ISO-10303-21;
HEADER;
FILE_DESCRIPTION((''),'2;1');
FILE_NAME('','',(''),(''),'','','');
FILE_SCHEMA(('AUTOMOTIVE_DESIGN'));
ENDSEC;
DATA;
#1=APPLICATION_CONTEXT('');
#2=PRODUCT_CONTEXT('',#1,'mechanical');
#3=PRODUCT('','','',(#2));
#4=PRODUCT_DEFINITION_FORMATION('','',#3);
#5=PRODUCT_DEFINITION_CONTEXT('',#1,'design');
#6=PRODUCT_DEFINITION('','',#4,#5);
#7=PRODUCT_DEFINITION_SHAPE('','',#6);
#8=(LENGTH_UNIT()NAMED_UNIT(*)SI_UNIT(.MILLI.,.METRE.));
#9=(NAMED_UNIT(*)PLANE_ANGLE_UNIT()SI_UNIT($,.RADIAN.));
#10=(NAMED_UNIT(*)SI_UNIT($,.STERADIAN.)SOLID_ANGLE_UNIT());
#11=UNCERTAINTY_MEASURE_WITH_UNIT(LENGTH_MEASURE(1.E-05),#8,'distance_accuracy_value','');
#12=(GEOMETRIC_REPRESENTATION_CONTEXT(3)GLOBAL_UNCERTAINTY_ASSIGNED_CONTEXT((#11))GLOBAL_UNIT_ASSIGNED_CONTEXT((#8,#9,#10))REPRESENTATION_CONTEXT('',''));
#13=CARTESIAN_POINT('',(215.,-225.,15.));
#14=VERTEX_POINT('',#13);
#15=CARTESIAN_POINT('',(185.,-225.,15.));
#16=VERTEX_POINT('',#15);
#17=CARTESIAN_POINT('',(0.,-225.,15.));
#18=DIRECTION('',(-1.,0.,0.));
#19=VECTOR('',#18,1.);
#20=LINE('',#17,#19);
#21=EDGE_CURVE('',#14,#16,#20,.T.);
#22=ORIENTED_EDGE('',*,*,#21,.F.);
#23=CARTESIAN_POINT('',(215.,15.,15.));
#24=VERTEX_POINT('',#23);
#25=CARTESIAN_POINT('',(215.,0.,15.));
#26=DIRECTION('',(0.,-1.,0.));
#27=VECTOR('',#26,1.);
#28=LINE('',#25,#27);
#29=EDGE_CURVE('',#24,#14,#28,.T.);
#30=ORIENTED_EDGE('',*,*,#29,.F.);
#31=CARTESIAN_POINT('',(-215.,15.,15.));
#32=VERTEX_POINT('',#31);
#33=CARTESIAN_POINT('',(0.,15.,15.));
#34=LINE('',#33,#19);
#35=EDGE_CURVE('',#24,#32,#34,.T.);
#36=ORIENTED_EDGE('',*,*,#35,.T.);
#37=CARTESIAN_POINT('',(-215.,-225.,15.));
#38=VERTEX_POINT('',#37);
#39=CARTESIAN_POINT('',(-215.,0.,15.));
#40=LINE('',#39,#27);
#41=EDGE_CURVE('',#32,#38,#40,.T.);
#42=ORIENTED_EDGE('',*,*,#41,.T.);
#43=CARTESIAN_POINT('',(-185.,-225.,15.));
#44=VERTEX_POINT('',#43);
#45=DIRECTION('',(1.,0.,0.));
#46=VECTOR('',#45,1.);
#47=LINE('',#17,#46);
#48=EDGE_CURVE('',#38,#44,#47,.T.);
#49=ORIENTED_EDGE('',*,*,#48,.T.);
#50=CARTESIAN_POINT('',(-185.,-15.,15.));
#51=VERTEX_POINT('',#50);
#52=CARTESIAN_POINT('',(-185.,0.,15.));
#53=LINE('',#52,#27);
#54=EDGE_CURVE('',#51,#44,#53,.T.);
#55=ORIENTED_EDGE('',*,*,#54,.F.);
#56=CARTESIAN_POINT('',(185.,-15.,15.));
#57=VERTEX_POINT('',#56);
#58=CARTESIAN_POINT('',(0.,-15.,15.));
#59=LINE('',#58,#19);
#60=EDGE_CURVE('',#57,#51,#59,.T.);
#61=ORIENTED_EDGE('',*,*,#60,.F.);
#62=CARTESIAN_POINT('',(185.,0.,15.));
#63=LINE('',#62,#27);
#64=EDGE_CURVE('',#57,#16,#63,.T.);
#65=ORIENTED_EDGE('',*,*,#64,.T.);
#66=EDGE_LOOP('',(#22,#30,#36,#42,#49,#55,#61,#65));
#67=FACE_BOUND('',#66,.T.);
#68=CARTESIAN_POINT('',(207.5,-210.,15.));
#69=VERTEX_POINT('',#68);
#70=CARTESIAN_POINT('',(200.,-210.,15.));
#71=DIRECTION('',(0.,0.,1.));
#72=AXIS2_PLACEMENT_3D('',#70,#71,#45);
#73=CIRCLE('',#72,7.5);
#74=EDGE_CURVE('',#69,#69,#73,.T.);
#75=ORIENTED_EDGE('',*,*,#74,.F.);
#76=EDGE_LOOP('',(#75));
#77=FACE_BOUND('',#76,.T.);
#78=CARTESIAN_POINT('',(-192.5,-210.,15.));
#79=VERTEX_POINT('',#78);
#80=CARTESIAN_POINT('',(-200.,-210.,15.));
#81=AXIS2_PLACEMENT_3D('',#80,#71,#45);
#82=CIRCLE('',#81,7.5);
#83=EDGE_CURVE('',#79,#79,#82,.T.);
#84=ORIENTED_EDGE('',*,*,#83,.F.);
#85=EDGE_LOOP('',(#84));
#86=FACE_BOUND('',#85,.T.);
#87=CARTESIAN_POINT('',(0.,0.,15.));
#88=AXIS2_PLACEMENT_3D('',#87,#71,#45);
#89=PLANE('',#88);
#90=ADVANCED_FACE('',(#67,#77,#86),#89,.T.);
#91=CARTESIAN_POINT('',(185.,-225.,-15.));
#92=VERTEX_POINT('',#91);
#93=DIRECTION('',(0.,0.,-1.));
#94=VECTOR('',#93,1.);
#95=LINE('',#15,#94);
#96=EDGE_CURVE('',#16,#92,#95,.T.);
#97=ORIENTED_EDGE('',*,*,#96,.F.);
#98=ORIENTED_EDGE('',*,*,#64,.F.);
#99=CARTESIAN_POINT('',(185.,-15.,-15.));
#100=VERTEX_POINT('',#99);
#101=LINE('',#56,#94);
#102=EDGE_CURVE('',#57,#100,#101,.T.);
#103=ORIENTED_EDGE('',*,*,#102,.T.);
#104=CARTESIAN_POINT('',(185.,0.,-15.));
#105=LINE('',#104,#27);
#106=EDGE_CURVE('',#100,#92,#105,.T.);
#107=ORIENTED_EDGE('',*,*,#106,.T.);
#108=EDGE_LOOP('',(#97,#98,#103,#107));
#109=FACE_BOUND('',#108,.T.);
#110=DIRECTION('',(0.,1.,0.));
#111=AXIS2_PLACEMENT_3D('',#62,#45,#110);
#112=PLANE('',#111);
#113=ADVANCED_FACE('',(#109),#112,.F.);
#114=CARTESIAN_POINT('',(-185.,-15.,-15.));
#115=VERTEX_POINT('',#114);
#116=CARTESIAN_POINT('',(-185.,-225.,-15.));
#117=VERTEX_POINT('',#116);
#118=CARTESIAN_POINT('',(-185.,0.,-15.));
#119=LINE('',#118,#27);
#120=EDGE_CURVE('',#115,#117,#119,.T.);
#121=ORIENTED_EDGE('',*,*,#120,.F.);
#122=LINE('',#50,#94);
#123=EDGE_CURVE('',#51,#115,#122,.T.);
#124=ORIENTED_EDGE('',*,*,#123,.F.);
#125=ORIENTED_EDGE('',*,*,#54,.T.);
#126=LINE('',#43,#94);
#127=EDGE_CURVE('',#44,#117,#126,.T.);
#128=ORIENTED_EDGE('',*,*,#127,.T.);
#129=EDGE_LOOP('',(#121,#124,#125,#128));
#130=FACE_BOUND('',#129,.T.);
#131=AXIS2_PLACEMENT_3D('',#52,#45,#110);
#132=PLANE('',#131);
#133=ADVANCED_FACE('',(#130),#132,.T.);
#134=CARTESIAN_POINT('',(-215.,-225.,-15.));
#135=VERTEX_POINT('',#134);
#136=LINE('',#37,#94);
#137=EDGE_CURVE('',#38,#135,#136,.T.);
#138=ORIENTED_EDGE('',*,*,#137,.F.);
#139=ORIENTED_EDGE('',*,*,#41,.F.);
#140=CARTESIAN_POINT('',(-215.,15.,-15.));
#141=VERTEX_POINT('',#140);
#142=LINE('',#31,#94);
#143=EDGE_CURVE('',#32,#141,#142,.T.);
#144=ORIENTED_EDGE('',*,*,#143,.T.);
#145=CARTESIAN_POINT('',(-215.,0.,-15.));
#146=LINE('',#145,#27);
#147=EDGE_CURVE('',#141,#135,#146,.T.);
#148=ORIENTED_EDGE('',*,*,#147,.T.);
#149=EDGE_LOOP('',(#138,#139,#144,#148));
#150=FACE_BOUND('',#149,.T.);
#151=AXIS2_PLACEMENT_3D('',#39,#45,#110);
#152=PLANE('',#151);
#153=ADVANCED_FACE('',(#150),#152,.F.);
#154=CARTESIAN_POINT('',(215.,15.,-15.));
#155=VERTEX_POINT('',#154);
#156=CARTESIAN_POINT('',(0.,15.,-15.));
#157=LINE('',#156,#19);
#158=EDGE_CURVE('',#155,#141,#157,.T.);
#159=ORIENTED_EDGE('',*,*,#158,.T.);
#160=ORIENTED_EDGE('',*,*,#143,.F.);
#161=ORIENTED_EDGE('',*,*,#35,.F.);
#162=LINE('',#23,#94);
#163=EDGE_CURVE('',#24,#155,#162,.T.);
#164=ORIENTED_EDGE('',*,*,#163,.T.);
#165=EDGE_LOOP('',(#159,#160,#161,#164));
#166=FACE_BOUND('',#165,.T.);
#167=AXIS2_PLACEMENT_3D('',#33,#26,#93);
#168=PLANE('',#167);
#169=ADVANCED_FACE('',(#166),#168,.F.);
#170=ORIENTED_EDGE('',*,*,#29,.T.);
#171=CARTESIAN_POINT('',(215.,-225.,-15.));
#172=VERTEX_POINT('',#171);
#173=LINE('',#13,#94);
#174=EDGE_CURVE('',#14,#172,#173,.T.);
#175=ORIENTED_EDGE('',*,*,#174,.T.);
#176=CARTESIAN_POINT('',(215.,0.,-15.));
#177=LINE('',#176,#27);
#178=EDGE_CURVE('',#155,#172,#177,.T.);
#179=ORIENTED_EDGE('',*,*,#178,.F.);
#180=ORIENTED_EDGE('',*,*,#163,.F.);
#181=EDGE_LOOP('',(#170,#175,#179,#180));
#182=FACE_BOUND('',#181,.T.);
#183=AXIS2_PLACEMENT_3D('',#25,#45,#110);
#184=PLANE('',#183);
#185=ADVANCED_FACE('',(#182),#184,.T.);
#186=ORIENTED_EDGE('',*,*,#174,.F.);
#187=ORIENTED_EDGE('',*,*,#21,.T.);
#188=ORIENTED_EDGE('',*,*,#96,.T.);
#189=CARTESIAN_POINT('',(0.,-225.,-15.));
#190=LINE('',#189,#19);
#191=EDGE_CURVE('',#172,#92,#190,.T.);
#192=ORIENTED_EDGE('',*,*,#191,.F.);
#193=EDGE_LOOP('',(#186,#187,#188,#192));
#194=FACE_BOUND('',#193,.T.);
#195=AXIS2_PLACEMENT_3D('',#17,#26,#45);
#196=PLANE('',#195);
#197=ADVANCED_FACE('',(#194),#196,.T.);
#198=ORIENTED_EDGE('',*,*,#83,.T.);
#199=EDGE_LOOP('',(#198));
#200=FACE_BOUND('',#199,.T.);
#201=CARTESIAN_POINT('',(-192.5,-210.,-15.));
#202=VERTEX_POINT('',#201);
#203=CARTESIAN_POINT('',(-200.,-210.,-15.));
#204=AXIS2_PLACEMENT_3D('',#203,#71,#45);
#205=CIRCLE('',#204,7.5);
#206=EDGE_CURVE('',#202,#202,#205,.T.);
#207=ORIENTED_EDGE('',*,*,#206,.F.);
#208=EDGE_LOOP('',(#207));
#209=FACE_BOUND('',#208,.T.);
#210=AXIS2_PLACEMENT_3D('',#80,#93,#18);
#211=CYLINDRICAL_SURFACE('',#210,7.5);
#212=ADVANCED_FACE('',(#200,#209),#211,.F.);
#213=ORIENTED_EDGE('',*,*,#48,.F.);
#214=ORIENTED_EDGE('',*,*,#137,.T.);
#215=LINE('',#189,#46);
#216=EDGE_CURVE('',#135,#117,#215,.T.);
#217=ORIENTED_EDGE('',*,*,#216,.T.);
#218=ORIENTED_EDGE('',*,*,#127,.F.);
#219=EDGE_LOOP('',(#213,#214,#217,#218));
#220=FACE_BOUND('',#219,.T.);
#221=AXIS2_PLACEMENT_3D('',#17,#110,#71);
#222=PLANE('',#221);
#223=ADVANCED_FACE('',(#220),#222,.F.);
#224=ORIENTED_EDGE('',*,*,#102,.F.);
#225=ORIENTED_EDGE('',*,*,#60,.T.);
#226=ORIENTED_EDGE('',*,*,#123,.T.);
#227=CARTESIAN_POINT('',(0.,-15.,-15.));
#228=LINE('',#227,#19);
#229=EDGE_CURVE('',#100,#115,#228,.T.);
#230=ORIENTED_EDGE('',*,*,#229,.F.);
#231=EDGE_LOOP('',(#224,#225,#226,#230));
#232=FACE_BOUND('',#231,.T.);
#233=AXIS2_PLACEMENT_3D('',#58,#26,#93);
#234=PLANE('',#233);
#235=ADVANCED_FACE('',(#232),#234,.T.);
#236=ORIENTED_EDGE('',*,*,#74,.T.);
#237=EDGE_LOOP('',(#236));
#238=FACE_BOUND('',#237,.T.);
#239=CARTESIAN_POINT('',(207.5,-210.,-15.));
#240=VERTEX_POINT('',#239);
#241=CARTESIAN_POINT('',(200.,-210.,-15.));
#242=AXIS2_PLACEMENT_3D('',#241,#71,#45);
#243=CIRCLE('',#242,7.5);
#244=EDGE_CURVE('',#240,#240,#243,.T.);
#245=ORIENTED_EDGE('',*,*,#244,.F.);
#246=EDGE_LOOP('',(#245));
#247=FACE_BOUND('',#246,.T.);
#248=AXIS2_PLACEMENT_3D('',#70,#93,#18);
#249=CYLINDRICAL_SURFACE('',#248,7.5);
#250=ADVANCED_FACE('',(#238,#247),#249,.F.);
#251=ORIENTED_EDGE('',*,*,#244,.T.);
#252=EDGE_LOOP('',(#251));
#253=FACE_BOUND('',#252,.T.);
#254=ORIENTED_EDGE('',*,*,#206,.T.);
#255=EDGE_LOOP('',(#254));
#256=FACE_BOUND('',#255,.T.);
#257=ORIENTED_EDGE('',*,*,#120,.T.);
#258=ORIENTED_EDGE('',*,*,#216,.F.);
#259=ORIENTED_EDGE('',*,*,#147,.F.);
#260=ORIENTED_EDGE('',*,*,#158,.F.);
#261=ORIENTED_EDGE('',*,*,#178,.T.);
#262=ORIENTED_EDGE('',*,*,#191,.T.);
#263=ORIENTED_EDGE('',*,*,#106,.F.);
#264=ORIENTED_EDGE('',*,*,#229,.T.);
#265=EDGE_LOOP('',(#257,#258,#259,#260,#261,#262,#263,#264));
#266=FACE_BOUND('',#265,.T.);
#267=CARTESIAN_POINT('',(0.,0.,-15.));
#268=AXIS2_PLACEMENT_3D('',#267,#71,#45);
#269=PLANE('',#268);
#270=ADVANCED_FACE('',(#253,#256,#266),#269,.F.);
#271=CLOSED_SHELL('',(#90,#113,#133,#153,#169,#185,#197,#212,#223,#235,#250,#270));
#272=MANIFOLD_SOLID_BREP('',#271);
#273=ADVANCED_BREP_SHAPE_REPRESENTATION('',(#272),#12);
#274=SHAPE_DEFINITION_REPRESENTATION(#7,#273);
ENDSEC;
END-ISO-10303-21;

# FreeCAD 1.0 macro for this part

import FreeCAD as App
import Part
import Sketcher

V = App.Vector


def add_polygon(sketch, points):
    """Adds a closed chain of lines whose ends are joined by coincident constraints."""
    first, n = sketch.GeometryCount, len(points)
    for a, b in zip(points, points[1:] + points[:1]):
        sketch.addGeometry(Part.LineSegment(App.Vector(*a, 0), App.Vector(*b, 0)), False)
    for i in range(n):
        sketch.addConstraint(Sketcher.Constraint("Coincident", first + i, 2, first + (i + 1) % n, 1))

doc = App.newDocument("Part")
body = doc.addObject("PartDesign::Body", "Body")

# Sketch on XY plane
sketch1 = doc.addObject("Sketcher::SketchObject", "Sketch")
body.addObject(sketch1)
sketch1.AttachmentSupport = (doc.XY_Plane, [""])
sketch1.MapMode = "FlatFace"
add_polygon(sketch1, [(-185, -225), (-185, -15), (185, -15), (185, -225), (215, -225), (215, 15), (-215, 15), (-215, -225)])  # lines 0-7
sketch1.addGeometry(Part.Circle(V(-200, -210, 0), V(0, 0, 1), 7.5), False)  # 8
sketch1.addGeometry(Part.Circle(V(200, -210, 0), V(0, 0, 1), 7.5), False)  # 9
sketch1.addConstraint([
    Sketcher.Constraint("Vertical", 0),
    Sketcher.Constraint("Horizontal", 1),
    Sketcher.Constraint("Vertical", 2),
    Sketcher.Constraint("Horizontal", 3),
    Sketcher.Constraint("Vertical", 4),
    Sketcher.Constraint("Horizontal", 5),
    Sketcher.Constraint("Vertical", 6),
    Sketcher.Constraint("Horizontal", 7),
    Sketcher.Constraint("Equal", 8, 9),
    Sketcher.Constraint("Symmetric", 8, 3, 9, 3, -2),
    Sketcher.Constraint("Symmetric", 3, 2, 6, 2, -2),
    Sketcher.Constraint("Equal", 3, 7),
    Sketcher.Constraint("Diameter", 8, 15.0),
    Sketcher.Constraint("DistanceX", 1, 1, 1, 2, 370.0),
    Sketcher.Constraint("DistanceX", 3, 1, 3, 2, 30.0),
    Sketcher.Constraint("DistanceY", 0, 1, 0, 2, 210.0),
    Sketcher.Constraint("DistanceY", 4, 1, 4, 2, 240.0),
    Sketcher.Constraint("DistanceX", 8, 3, -1, 1, 200.0),
    Sketcher.Constraint("DistanceY", 8, 3, -1, 1, 210.0),
    Sketcher.Constraint("DistanceY", 0, 2, -1, 1, 15.0),
])
pad1 = doc.addObject("PartDesign::Pad", "Pad")
body.addObject(pad1)
pad1.Profile = sketch1
pad1.Length = 30
pad1.Midplane = True

doc.recompute()
